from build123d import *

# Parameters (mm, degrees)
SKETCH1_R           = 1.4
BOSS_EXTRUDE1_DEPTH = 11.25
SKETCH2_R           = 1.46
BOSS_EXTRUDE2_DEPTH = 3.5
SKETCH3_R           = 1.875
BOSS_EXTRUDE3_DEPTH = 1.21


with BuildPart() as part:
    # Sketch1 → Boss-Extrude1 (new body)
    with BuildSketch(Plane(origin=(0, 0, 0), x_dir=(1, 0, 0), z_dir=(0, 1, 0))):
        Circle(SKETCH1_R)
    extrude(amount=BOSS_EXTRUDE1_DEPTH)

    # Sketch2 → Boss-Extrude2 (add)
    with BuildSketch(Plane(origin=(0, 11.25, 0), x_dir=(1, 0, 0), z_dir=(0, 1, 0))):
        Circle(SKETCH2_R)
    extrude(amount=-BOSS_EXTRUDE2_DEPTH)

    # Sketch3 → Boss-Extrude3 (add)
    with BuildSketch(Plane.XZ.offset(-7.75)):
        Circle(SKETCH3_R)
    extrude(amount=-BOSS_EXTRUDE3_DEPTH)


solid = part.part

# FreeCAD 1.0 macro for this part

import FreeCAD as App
import Part
import Sketcher

V = App.Vector
Q = App.Units.Quantity

doc = App.newDocument("Part")
body = doc.addObject("PartDesign::Body", "Body")

sketch1 = body.newObject("Sketcher::SketchObject", "Sketch")
sketch1.AttachmentSupport = (doc.getObject("XZ_Plane"), [""])
sketch1.MapMode = "FlatFace"
sketch1.addGeometry(Part.Circle(V(0, 0, 0), V(0, 0, 1), 1.4), False)
sketch1.addConstraint(Sketcher.Constraint("Coincident", 0, 3, -1, 1))
sketch1.addConstraint(Sketcher.Constraint("Diameter", 0, Q("2.8 mm")))
pad1 = body.newObject("PartDesign::Pad", "Pad")
pad1.Profile = sketch1
pad1.Length = 11.25
pad1.Reversed = True

sketch2 = body.newObject("Sketcher::SketchObject", "Sketch001")
sketch2.AttachmentSupport = (doc.getObject("XZ_Plane"), [""])
sketch2.MapMode = "FlatFace"
sketch2.AttachmentOffset = App.Placement(V(0, 0, -11.25), App.Rotation())
sketch2.addGeometry(Part.Circle(V(0, 0, 0), V(0, 0, 1), 1.5), False)
sketch2.addConstraint(Sketcher.Constraint("Coincident", 0, 3, -1, 1))
sketch2.addConstraint(Sketcher.Constraint("Diameter", 0, Q("2.92 mm")))
pad2 = body.newObject("PartDesign::Pad", "Pad001")
pad2.Profile = sketch2
pad2.Length = 3.5

sketch3 = body.newObject("Sketcher::SketchObject", "Sketch002")
sketch3.AttachmentSupport = (doc.getObject("XZ_Plane"), [""])
sketch3.MapMode = "FlatFace"
sketch3.AttachmentOffset = App.Placement(V(0, 0, -7.75), App.Rotation())
sketch3.addGeometry(Part.Circle(V(0, 0, 0), V(0, 0, 1), 1.9), False)
sketch3.addConstraint(Sketcher.Constraint("Coincident", 0, 3, -1, 1))
sketch3.addConstraint(Sketcher.Constraint("Diameter", 0, Q("3.75 mm")))
pad3 = body.newObject("PartDesign::Pad", "Pad002")
pad3.Profile = sketch3
pad3.Length = 1.21
pad3.Reversed = True

doc.recompute()
